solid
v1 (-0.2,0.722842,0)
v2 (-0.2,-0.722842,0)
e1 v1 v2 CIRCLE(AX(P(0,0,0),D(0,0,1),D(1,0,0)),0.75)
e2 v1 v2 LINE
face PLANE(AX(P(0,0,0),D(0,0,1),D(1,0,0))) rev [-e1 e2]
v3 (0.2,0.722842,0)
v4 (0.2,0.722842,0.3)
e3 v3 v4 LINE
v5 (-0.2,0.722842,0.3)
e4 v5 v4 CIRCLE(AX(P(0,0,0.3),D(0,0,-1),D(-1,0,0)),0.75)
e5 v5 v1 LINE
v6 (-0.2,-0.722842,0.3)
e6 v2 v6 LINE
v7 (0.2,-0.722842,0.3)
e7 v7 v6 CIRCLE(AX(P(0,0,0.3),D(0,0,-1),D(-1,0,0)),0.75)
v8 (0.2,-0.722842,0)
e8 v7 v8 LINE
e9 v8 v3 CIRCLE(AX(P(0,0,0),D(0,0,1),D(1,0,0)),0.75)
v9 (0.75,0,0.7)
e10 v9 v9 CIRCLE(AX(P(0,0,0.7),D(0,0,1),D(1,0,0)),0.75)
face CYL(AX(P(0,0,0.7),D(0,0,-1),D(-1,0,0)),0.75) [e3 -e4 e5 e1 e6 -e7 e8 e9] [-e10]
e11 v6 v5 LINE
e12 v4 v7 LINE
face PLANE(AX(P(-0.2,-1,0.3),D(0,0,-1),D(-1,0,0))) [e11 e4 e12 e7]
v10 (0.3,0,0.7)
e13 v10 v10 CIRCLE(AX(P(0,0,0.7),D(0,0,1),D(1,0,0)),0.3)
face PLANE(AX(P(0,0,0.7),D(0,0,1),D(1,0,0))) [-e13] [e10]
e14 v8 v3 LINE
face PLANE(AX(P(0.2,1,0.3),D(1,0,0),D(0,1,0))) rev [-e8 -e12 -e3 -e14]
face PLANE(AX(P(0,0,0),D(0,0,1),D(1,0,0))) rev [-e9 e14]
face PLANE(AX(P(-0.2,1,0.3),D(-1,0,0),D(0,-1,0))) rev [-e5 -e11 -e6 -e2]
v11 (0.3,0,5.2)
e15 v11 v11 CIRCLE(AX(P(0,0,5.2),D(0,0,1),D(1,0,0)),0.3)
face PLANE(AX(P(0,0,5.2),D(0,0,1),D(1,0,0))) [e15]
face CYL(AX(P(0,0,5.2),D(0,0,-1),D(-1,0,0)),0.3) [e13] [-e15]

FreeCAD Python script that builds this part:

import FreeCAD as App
import Part
import Sketcher


def add_polygon(sketch, points):
    """Adds a closed chain of lines whose ends are joined by coincident constraints."""
    first, n = sketch.GeometryCount, len(points)
    for a, b in zip(points, points[1:] + points[:1]):
        sketch.addGeometry(Part.LineSegment(App.Vector(*a, 0), App.Vector(*b, 0)), False)
    for i in range(n):
        sketch.addConstraint(Sketcher.Constraint("Coincident", first + i, 2, first + (i + 1) % n, 1))

doc = App.newDocument("Part")
body = doc.addObject("PartDesign::Body", "Body")

# Sketch on XY plane
sketch1 = body.newObject("Sketcher::SketchObject", "Sketch")
sketch1.AttachmentSupport = (doc.getObject("XY_Plane"), [""])
sketch1.MapMode = "FlatFace"
sketch1.addGeometry(Part.Circle(App.Vector(0, 0, 0), App.Vector(0, 0, 1), 0.8), False)
sketch1.addConstraint([
    Sketcher.Constraint("Coincident", 0, 3, -1, 1),
    Sketcher.Constraint("Diameter", 0, 1.5),
])
pad1 = body.newObject("PartDesign::Pad", "Pad")
pad1.Profile = sketch1
pad1.Length = 0.7

# Sketch on XY plane
sketch2 = body.newObject("Sketcher::SketchObject", "Sketch001")
sketch2.AttachmentSupport = (doc.getObject("XY_Plane"), [""])
sketch2.MapMode = "FlatFace"
sketch2.AttachmentOffset = App.Placement(App.Vector(0, 0, 0.7), App.Rotation())
sketch2.addGeometry(Part.Circle(App.Vector(0, 0, 0), App.Vector(0, 0, 1), 0.3), False)
sketch2.addConstraint([
    Sketcher.Constraint("Coincident", 0, 3, -1, 1),
    Sketcher.Constraint("Diameter", 0, 0.6),
])
pad2 = body.newObject("PartDesign::Pad", "Pad001")
pad2.Profile = sketch2
pad2.Length = 4.5

# Sketch on XY plane
sketch3 = body.newObject("Sketcher::SketchObject", "Sketch002")
sketch3.AttachmentSupport = (doc.getObject("XY_Plane"), [""])
sketch3.MapMode = "FlatFace"
add_polygon(sketch3, [(0.2, 1), (0.2, -1), (-0.2, -1), (-0.2, 1)])  # lines 0-3
sketch3.addConstraint([
    Sketcher.Constraint("Vertical", 0),
    Sketcher.Constraint("Horizontal", 1),
    Sketcher.Constraint("Vertical", 2),
    Sketcher.Constraint("Horizontal", 3),
    Sketcher.Constraint("Symmetric", 0, 2, 2, 2, -1, 1),
    Sketcher.Constraint("DistanceY", 0, 2, 0, 1, 2.0),
    Sketcher.Constraint("DistanceX", 1, 2, 1, 1, 0.4),
])
pocket1 = body.newObject("PartDesign::Pocket", "Pocket")
pocket1.Profile = sketch3
pocket1.Length = 0.3
pocket1.Reversed = True

doc.recompute()
